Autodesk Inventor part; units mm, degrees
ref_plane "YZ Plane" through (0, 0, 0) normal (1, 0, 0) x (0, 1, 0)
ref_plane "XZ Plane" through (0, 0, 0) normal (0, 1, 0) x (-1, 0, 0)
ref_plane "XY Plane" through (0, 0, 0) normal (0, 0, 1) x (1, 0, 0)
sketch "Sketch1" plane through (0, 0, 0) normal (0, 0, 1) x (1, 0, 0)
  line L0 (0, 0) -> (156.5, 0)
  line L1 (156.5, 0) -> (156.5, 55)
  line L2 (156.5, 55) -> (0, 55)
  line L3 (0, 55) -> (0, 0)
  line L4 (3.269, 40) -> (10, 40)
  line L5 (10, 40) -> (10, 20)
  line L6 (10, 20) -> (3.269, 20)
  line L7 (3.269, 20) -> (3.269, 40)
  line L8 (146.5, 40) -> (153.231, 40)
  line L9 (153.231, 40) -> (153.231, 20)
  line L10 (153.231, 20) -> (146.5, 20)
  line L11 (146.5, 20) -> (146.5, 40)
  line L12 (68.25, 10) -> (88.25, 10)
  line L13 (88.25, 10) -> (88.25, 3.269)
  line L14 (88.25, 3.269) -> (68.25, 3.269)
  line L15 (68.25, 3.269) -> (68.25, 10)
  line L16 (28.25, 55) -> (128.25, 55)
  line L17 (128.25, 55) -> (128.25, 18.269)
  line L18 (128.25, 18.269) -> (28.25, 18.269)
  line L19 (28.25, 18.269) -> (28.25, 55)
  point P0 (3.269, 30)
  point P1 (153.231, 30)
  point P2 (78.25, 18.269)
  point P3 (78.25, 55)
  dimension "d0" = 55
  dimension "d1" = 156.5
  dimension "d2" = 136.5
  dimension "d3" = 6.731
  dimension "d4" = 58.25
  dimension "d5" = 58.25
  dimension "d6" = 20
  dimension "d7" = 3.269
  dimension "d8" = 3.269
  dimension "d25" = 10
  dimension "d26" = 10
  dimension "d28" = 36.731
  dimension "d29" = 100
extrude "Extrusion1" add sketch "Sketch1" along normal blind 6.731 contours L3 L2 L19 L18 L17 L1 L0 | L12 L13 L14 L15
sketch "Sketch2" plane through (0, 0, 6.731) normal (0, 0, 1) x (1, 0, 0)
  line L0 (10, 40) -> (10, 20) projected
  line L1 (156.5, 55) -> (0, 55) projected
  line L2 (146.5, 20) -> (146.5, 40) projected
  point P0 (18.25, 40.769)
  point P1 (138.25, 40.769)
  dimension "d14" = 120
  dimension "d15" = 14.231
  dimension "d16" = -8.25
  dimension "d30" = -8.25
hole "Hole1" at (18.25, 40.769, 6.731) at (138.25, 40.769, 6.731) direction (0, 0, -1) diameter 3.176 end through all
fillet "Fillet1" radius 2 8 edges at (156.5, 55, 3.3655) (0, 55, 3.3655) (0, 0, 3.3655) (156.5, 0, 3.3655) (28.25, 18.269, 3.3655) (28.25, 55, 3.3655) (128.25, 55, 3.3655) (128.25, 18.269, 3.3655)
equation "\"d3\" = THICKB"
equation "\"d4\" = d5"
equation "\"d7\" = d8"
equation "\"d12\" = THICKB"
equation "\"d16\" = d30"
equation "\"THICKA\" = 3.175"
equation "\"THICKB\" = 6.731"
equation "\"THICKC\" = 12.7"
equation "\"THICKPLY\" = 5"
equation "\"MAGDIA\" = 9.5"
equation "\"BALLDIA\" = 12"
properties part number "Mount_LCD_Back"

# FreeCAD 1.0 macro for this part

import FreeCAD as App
import Part
import Sketcher
from FreeCAD import Vector
Q = App.Units.Quantity


def edges_at(feature, points):
    """Names of the edges that pass closest to the given points."""
    edges = feature.Shape.Edges
    near = lambda p: min(range(len(edges)), key=lambda i: edges[i].distToShape(Part.Vertex(*p))[0])
    return sorted({f"Edge{near(p) + 1}" for p in points})


def add_polygon(sketch, points):
    """Adds a closed chain of lines whose ends are joined by coincident constraints."""
    first, n = sketch.GeometryCount, len(points)
    for a, b in zip(points, points[1:] + points[:1]):
        sketch.addGeometry(Part.LineSegment(App.Vector(*a, 0), App.Vector(*b, 0)), False)
    for i in range(n):
        sketch.addConstraint(Sketcher.Constraint("Coincident", first + i, 2, first + (i + 1) % n, 1))

doc = App.newDocument("Part")
body = doc.addObject("PartDesign::Body", "Body")

# Sketch on XY plane
sketch1 = doc.addObject("Sketcher::SketchObject", "Sketch")
body.addObject(sketch1)
sketch1.AttachmentSupport = (doc.XY_Plane, [""])
sketch1.MapMode = "FlatFace"
add_polygon(sketch1, [(0, 55), (0, 0), (156.5, 0), (156.5, 55), (128.25, 55), (128.25, 18.269), (28.25, 18.269), (28.25, 55)])  # lines 0-7
add_polygon(sketch1, [(3.269, 20), (3.269, 40), (10, 40), (10, 20)])  # lines 8-11
add_polygon(sketch1, [(146.5, 20), (146.5, 40), (153.231, 40), (153.231, 20)])  # lines 12-15
sketch1.addConstraint(Sketcher.Constraint("Vertical", 0))
sketch1.addConstraint(Sketcher.Constraint("Horizontal", 1))
sketch1.addConstraint(Sketcher.Constraint("Vertical", 2))
sketch1.addConstraint(Sketcher.Constraint("Horizontal", 3))
sketch1.addConstraint(Sketcher.Constraint("Vertical", 4))
sketch1.addConstraint(Sketcher.Constraint("Horizontal", 5))
sketch1.addConstraint(Sketcher.Constraint("Vertical", 6))
sketch1.addConstraint(Sketcher.Constraint("Horizontal", 7))
sketch1.addConstraint(Sketcher.Constraint("Vertical", 8))
sketch1.addConstraint(Sketcher.Constraint("Horizontal", 9))
sketch1.addConstraint(Sketcher.Constraint("Vertical", 10))
sketch1.addConstraint(Sketcher.Constraint("Horizontal", 11))
sketch1.addConstraint(Sketcher.Constraint("Vertical", 12))
sketch1.addConstraint(Sketcher.Constraint("Horizontal", 13))
sketch1.addConstraint(Sketcher.Constraint("Vertical", 14))
sketch1.addConstraint(Sketcher.Constraint("Horizontal", 15))
sketch1.addConstraint(Sketcher.Constraint("Coincident", 0, 2, -1, 1))
sketch1.addConstraint(Sketcher.Constraint("Horizontal", 3, 2, 6, 2))
sketch1.addConstraint(Sketcher.Constraint("Horizontal", 9, 2, 12, 2))
sketch1.addConstraint(Sketcher.Constraint("Horizontal", 11, 2, 14, 2))
sketch1.addConstraint(Sketcher.Constraint("Equal", 3, 7))
sketch1.addConstraint(Sketcher.Constraint("Equal", 11, 13))
sketch1.addConstraint(Sketcher.Constraint("DistanceX", 5, 2, 5, 1, Q("100 mm")))
sketch1.addConstraint(Sketcher.Constraint("DistanceY", 0, 2, 0, 1, Q("55 mm")))
sketch1.addConstraint(Sketcher.Constraint("DistanceY", 8, 1, 8, 2, Q("20 mm")))
sketch1.addConstraint(Sketcher.Constraint("DistanceX", 1, 1, 1, 2, Q("156.5 mm")))
sketch1.addConstraint(Sketcher.Constraint("DistanceX", -1, 1, 9, 2, Q("10 mm")))
sketch1.addConstraint(Sketcher.Constraint("DistanceY", -1, 1, 10, 2, Q("20 mm")))
sketch1.addConstraint(Sketcher.Constraint("DistanceX", 12, 2, 2, 2, Q("10 mm")))
sketch1.addConstraint(Sketcher.Constraint("DistanceX", 9, 1, 9, 2, Q("6.731 mm")))
sketch1.addConstraint(Sketcher.Constraint("DistanceY", 4, 2, 4, 1, Q("36.731 mm")))
pad1 = doc.addObject("PartDesign::Pad", "Pad")
body.addObject(pad1)
pad1.Profile = sketch1
pad1.Length = 6.731

# Sketch on XY plane
sketch2 = doc.addObject("Sketcher::SketchObject", "Sketch001")
body.addObject(sketch2)
sketch2.AttachmentSupport = (doc.XY_Plane, [""])
sketch2.MapMode = "FlatFace"
sketch2.AttachmentOffset = App.Placement(Vector(0, 0, 6.731), App.Rotation())
sketch2.addGeometry(Part.Circle(Vector(18.25, 40.769, 0), Vector(0, 0, 1), 1.588), False)
sketch2.addGeometry(Part.Circle(Vector(138.25, 40.769, 0), Vector(0, 0, 1), 1.588), False)
sketch2.addConstraint(Sketcher.Constraint("Equal", 0, 1))
sketch2.addConstraint(Sketcher.Constraint("Horizontal", 0, 3, 1, 3))
sketch2.addConstraint(Sketcher.Constraint("Diameter", 0, Q("3.176 mm")))
sketch2.addConstraint(Sketcher.Constraint("DistanceX", 0, 3, 1, 3, Q("120 mm")))
sketch2.addConstraint(Sketcher.Constraint("DistanceX", -1, 1, 0, 3, Q("18.25 mm")))
sketch2.addConstraint(Sketcher.Constraint("DistanceY", -1, 1, 0, 3, Q("40.769 mm")))
doc.recompute()
hole = doc.addObject("PartDesign::Hole", "Hole")
body.addObject(hole)
hole.Profile = sketch2
hole.ThreadType = "None"
hole.Diameter = 3.176
hole.DepthType = "ThroughAll"
doc.recompute()

fillet = doc.addObject("PartDesign::Fillet", "Fillet")
body.addObject(fillet)
fillet.Base = (hole, edges_at(hole, [
    (156.5, 55, 3.365),
    (0, 55, 3.365),
    (0, 0, 3.365),
    (156.5, 0, 3.365),
    (28.25, 18.269, 3.365),
    (28.25, 55, 3.365),
    (128.25, 55, 3.365),
    (128.25, 18.269, 3.365),
]))
fillet.Radius = 2

doc.recompute()
